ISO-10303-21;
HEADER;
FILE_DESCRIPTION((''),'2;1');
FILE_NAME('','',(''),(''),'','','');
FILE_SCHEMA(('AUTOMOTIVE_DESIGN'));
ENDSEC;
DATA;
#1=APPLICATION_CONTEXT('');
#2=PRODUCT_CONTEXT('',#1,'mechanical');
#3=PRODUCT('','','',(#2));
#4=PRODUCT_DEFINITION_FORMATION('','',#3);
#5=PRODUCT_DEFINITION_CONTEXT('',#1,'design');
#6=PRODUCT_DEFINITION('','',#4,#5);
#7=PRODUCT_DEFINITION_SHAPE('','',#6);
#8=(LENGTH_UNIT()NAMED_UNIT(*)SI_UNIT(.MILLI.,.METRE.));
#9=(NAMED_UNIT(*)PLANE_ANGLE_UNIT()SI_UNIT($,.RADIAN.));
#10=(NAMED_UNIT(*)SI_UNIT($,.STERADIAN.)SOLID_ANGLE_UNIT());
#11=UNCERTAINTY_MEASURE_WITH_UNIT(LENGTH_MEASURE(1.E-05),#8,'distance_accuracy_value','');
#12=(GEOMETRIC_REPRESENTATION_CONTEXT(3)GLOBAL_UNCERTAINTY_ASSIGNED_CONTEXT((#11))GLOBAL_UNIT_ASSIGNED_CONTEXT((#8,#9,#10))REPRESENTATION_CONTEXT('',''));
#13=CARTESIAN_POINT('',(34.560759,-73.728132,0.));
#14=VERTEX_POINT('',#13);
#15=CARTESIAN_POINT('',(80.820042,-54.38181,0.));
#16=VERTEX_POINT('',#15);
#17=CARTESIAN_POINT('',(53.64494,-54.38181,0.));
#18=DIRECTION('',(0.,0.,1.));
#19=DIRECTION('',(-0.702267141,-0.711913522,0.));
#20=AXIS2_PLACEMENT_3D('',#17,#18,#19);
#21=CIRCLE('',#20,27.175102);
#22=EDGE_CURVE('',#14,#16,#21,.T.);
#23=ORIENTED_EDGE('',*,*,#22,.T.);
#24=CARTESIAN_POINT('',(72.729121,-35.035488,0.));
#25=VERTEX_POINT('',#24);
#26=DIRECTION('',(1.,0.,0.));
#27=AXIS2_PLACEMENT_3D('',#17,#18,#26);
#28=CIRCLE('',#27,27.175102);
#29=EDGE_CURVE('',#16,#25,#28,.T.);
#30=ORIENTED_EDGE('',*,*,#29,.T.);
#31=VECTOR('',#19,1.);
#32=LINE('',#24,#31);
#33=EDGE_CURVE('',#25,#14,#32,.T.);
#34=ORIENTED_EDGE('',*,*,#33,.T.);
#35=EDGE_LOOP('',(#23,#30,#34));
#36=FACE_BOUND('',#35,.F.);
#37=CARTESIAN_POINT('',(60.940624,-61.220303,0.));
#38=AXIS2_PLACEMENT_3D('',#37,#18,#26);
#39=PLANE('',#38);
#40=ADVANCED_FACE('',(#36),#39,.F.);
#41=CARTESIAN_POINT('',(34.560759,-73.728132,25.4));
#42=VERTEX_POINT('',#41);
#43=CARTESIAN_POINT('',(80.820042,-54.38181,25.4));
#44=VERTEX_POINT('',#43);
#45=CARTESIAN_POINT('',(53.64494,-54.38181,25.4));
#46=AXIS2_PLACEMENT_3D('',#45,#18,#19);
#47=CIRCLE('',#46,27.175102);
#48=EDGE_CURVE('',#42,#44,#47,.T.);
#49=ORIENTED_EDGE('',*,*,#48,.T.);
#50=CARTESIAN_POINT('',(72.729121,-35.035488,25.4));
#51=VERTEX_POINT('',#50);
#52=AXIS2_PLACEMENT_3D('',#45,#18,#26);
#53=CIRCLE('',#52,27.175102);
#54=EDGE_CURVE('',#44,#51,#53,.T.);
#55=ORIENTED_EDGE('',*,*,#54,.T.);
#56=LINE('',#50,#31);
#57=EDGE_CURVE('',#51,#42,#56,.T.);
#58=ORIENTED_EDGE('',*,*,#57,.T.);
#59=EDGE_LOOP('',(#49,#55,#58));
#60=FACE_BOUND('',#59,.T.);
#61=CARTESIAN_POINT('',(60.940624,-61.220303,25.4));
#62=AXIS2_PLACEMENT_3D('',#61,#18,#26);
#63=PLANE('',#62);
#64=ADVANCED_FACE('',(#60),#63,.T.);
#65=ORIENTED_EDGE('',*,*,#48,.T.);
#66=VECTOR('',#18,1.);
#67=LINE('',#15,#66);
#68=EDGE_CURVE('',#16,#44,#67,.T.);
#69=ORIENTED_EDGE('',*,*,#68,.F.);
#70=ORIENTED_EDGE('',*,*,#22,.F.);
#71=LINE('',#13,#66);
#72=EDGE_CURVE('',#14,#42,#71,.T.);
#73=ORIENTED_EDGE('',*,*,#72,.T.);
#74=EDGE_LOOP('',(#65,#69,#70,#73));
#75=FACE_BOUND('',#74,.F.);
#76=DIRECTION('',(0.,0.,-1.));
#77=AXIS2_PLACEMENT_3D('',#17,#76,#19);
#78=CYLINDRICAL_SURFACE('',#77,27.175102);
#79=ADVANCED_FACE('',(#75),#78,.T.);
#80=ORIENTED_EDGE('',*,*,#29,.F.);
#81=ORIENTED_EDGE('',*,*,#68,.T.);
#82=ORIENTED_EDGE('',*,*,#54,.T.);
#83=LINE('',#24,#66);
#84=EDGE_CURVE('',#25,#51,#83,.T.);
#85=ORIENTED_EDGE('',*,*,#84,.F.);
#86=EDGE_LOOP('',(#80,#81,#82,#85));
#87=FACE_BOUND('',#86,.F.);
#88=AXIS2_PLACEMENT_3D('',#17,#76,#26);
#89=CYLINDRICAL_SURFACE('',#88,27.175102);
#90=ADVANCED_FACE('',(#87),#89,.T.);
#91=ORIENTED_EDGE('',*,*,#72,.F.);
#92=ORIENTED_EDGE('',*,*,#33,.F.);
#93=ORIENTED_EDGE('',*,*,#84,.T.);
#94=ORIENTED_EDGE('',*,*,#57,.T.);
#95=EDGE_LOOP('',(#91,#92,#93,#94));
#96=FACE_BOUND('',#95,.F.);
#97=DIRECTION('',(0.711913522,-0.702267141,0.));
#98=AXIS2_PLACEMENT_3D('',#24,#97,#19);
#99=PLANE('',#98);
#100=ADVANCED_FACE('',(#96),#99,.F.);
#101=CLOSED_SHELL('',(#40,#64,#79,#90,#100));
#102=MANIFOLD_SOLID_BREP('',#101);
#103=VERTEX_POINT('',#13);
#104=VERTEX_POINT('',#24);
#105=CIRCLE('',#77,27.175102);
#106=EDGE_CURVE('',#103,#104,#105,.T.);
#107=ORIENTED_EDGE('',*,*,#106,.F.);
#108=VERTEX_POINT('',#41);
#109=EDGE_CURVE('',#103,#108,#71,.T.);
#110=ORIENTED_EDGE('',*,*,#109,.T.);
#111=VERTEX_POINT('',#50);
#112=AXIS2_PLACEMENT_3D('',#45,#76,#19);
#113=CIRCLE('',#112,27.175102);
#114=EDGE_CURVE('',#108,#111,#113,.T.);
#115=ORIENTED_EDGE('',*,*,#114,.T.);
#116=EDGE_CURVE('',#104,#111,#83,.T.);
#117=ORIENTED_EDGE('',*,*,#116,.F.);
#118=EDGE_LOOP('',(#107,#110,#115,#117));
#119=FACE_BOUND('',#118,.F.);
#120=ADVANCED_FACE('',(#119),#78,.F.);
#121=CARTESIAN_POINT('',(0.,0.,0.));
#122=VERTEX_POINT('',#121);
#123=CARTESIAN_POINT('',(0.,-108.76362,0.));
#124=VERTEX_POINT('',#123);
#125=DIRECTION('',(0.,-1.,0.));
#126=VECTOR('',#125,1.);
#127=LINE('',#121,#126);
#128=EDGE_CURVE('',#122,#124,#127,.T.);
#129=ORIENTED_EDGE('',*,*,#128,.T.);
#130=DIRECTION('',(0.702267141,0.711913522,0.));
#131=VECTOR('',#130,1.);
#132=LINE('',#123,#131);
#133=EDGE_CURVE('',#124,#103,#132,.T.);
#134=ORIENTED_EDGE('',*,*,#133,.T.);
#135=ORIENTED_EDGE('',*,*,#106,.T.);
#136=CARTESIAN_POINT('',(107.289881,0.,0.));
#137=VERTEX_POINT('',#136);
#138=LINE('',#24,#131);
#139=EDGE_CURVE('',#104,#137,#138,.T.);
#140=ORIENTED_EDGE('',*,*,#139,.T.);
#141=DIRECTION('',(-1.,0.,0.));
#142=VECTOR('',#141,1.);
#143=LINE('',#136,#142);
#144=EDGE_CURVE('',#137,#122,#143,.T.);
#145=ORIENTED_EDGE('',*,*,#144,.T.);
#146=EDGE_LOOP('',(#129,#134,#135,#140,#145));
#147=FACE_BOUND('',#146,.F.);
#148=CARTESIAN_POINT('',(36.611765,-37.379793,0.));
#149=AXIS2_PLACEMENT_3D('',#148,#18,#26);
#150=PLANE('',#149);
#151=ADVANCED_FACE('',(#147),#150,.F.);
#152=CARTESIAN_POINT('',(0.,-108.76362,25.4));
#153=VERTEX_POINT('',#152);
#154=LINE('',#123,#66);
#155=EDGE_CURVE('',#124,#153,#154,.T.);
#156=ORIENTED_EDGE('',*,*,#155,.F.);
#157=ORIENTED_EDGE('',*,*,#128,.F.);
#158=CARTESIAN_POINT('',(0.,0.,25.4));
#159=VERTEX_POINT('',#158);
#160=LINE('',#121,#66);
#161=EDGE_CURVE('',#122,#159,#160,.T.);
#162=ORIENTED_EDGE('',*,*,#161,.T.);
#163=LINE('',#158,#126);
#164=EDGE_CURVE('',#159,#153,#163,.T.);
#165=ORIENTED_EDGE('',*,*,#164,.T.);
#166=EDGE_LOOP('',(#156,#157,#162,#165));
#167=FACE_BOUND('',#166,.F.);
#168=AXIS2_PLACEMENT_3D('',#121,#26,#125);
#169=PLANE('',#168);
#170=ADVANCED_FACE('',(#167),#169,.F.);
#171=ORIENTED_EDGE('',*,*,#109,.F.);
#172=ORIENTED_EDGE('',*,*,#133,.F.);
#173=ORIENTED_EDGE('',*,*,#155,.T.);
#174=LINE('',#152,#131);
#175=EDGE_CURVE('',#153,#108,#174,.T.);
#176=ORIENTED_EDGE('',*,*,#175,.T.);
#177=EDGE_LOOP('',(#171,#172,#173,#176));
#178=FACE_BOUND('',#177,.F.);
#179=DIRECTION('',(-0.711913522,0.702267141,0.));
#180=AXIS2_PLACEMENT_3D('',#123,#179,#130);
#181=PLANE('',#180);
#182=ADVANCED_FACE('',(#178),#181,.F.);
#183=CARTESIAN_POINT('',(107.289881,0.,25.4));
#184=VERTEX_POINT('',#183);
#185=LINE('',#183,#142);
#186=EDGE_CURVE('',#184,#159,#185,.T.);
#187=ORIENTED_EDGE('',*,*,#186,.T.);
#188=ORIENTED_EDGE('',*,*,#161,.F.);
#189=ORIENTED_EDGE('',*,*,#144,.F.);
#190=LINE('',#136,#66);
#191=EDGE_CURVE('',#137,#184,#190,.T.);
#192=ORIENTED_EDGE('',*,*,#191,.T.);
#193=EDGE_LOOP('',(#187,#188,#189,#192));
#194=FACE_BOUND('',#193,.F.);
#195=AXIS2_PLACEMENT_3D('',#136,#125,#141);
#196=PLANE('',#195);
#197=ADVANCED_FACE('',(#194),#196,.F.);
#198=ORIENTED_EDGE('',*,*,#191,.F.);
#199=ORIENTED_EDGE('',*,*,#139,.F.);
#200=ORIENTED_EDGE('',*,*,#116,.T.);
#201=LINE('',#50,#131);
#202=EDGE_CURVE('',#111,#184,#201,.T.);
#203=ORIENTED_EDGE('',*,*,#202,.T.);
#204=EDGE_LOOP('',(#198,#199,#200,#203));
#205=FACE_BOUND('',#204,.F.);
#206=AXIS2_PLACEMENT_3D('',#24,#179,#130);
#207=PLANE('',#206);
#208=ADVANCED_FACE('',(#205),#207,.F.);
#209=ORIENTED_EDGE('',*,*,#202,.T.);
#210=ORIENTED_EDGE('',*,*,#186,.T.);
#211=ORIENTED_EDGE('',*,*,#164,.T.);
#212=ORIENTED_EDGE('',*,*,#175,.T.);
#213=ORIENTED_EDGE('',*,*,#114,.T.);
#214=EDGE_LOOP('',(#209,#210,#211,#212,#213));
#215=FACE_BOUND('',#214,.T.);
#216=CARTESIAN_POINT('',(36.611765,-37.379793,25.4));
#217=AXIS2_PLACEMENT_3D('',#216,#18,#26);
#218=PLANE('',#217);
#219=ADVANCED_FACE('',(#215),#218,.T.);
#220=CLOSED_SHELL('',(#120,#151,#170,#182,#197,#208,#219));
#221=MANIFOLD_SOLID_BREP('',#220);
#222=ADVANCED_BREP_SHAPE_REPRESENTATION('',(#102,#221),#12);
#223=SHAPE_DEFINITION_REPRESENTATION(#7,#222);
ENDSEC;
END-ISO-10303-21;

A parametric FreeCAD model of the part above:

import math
import FreeCAD as App
import Part
import Sketcher
Q = App.Units.Quantity

doc = App.newDocument("Part")
params = doc.addObject("Spreadsheet::Sheet", "Params")
for row, (alias, value) in enumerate([
    ("pad1_length", "1 in"),
    ("pad2_length", "1 in"),
], start=1):
    params.set(f"A{row}", alias)
    params.set(f"B{row}", "=" + value)
    params.setAlias(f"B{row}", alias)

body = doc.addObject("PartDesign::Body", "Body")

# Sketch on XY plane
sketch1 = doc.addObject("Sketcher::SketchObject", "Sketch")
body.addObject(sketch1)
sketch1.AttachmentSupport = (doc.XY_Plane, [""])
sketch1.MapMode = "FlatFace"
sketch1.addGeometry(Part.LineSegment(App.Vector(107, 0, 0), App.Vector(0, 0, 0)), False)
sketch1.addGeometry(Part.LineSegment(App.Vector(0, 0, 0), App.Vector(0, -109, 0)), False)
sketch1.addGeometry(Part.LineSegment(App.Vector(0, -109, 0), App.Vector(35, -74, 0)), False)
sketch1.addGeometry(Part.ArcOfCircle(Part.Circle(App.Vector(54, -54, 0), App.Vector(0, 0, 1), 27), math.radians(45), math.radians(225)), False)
sketch1.addGeometry(Part.LineSegment(App.Vector(73, -35, 0), App.Vector(107, 0, 0)), False)
sketch1.addConstraint(Sketcher.Constraint("Coincident", 0, 2, 1, 1))
sketch1.addConstraint(Sketcher.Constraint("Coincident", 1, 2, 2, 1))
sketch1.addConstraint(Sketcher.Constraint("Coincident", 2, 2, 3, 2))
sketch1.addConstraint(Sketcher.Constraint("Coincident", 3, 1, 4, 1))
sketch1.addConstraint(Sketcher.Constraint("Coincident", 4, 2, 0, 1))
sketch1.addConstraint(Sketcher.Constraint("Horizontal", 0))
sketch1.addConstraint(Sketcher.Constraint("Vertical", 1))
sketch1.addConstraint(Sketcher.Constraint("Coincident", 0, 2, -1, 1))
sketch1.addConstraint(Sketcher.Constraint("Parallel", 2, 4))
sketch1.addConstraint(Sketcher.Constraint("Equal", 2, 4))
sketch1.addConstraint(Sketcher.Constraint("Radius", 3, Q("27.175102 mm")))
sketch1.addConstraint(Sketcher.Constraint("DistanceX", 0, 2, 0, 1, Q("107.289881 mm")))
sketch1.addConstraint(Sketcher.Constraint("DistanceY", 1, 2, 1, 1, Q("108.76362 mm")))
sketch1.addConstraint(Sketcher.Constraint("DistanceX", -1, 1, 3, 3, Q("53.64494 mm")))
sketch1.addConstraint(Sketcher.Constraint("DistanceX", -1, 1, 2, 2, Q("34.560759 mm")))
pad1 = doc.addObject("PartDesign::Pad", "Pad")
body.addObject(pad1)
pad1.Profile = sketch1
pad1.setExpression("Length", "Params.pad1_length")
body2 = doc.addObject("PartDesign::Body", "Body001")

# Sketch on XY plane
sketch2 = doc.addObject("Sketcher::SketchObject", "Sketch001")
body2.addObject(sketch2)
sketch2.AttachmentSupport = (doc.getObject("XY_Plane001"), [""])
sketch2.MapMode = "FlatFace"
sketch2.addGeometry(Part.ArcOfCircle(Part.Circle(App.Vector(54, -54, 0), App.Vector(0, 0, 1), 27), math.radians(0), math.radians(45)), False)
sketch2.addGeometry(Part.LineSegment(App.Vector(73, -35, 0), App.Vector(35, -74, 0)), False)
sketch2.addGeometry(Part.ArcOfCircle(Part.Circle(App.Vector(54, -54, 0), App.Vector(0, 0, 1), 27), math.radians(-135), math.radians(0)), False)
sketch2.addConstraint(Sketcher.Constraint("Coincident", 0, 2, 1, 1))
sketch2.addConstraint(Sketcher.Constraint("Coincident", 1, 2, 2, 1))
sketch2.addConstraint(Sketcher.Constraint("Tangent", 2, 2, 0, 1))
sketch2.addConstraint(Sketcher.Constraint("Equal", 0, 2))
sketch2.addConstraint(Sketcher.Constraint("Horizontal", 0, 3, 2, 2))
sketch2.addConstraint(Sketcher.Constraint("Radius", 0, Q("27.175102 mm")))
sketch2.addConstraint(Sketcher.Constraint("DistanceX", -1, 1, 0, 3, Q("53.64494 mm")))
sketch2.addConstraint(Sketcher.Constraint("DistanceY", 0, 3, -1, 1, Q("54.38181 mm")))
sketch2.addConstraint(Sketcher.Constraint("DistanceX", -1, 1, 0, 2, Q("72.729121 mm")))
sketch2.addConstraint(Sketcher.Constraint("DistanceX", -1, 1, 1, 2, Q("34.560759 mm")))
pad2 = doc.addObject("PartDesign::Pad", "Pad001")
body2.addObject(pad2)
pad2.Profile = sketch2
pad2.setExpression("Length", "Params.pad2_length")

doc.recompute()
